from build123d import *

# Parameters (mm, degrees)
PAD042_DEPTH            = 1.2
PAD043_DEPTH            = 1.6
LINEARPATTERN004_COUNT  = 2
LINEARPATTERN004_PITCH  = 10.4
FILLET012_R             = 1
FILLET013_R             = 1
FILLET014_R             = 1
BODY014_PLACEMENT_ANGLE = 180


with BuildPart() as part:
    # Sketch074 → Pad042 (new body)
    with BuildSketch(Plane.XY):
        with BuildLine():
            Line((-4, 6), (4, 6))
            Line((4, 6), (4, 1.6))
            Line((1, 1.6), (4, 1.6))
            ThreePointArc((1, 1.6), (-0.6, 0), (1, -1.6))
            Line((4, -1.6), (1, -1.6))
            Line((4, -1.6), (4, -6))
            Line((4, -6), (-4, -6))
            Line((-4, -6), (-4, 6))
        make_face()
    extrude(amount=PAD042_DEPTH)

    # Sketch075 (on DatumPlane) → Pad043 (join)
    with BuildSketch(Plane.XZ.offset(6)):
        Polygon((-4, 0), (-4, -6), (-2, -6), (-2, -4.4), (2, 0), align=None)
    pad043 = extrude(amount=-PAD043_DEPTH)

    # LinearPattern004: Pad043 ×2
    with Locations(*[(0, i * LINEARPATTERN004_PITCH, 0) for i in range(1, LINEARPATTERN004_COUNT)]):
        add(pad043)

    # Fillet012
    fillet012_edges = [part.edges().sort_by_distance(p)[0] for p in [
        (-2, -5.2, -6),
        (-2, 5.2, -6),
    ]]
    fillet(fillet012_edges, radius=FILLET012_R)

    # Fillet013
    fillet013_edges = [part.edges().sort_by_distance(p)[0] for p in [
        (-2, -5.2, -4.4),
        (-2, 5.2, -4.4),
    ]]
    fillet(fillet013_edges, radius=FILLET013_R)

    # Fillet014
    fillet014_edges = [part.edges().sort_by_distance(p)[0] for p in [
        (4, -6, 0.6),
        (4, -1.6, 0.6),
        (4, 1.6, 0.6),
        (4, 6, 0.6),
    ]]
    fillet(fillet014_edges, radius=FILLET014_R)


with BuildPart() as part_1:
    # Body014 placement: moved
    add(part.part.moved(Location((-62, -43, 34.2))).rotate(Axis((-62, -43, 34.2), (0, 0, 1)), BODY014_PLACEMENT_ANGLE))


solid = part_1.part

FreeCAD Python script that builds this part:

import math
import FreeCAD as App
import Part
import Sketcher
Q = App.Units.Quantity


def edges_at(feature, points):
    """Names of the edges that pass closest to the given points."""
    edges = feature.Shape.Edges
    near = lambda p: min(range(len(edges)), key=lambda i: edges[i].distToShape(Part.Vertex(*p))[0])
    return sorted({f"Edge{near(p) + 1}" for p in points})

doc = App.newDocument("Part")
body = doc.addObject("PartDesign::Body", "Body")

sketch1 = body.newObject("Sketcher::SketchObject", "Sketch")
sketch1.AttachmentSupport = (doc.getObject("XY_Plane"), [""])
sketch1.MapMode = "FlatFace"
sketch1.addGeometry([
    Part.LineSegment(App.Vector(4, 6, 0), App.Vector(-4, 6, 0)),
    Part.LineSegment(App.Vector(-4, 6, 0), App.Vector(-4, -6, 0)),
    Part.LineSegment(App.Vector(-4, -6, 0), App.Vector(4, -6, 0)),
    Part.LineSegment(App.Vector(4, -6, 0), App.Vector(4, -1.6, 0)),
    Part.LineSegment(App.Vector(4, -1.6, 0), App.Vector(1, -1.6, 0)),
    Part.ArcOfCircle(Part.Circle(App.Vector(1, 0, 0), App.Vector(0, 0, 1), 1.6), math.radians(90), math.radians(270)),
    Part.LineSegment(App.Vector(1, 1.6, 0), App.Vector(4, 1.6, 0)),
    Part.LineSegment(App.Vector(4, 1.6, 0), App.Vector(4, 6, 0)),
], False)
sketch1.addConstraint([
    Sketcher.Constraint("Coincident", 0, 2, 1, 1),
    Sketcher.Constraint("Coincident", 1, 2, 2, 1),
    Sketcher.Constraint("Coincident", 2, 2, 3, 1),
    Sketcher.Constraint("Coincident", 3, 2, 4, 1),
    Sketcher.Constraint("Tangent", 4, 2, 5, 2),
    Sketcher.Constraint("Tangent", 5, 1, 6, 1),
    Sketcher.Constraint("Coincident", 6, 2, 7, 1),
    Sketcher.Constraint("Coincident", 7, 2, 0, 1),
    Sketcher.Constraint("Horizontal", 0),
    Sketcher.Constraint("Vertical", 1),
    Sketcher.Constraint("Horizontal", 2),
    Sketcher.Constraint("Vertical", 3),
    Sketcher.Constraint("Horizontal", 4),
    Sketcher.Constraint("Horizontal", 6),
    Sketcher.Constraint("Vertical", 7),
    Sketcher.Constraint("Symmetric", 0, 2, 2, 2, -1, 1),
    Sketcher.Constraint("Symmetric", 3, 2, 6, 2, -1),
    Sketcher.Constraint("Radius", 5, Q("1.6 mm")),
    Sketcher.Constraint("DistanceX", 0, 2, 0, 1, Q("8 mm")),
    Sketcher.Constraint("DistanceX", 4, 2, 4, 1, Q("3 mm")),
    Sketcher.Constraint("DistanceY", 1, 2, 1, 1, Q("12 mm")),
])
pad1 = body.newObject("PartDesign::Pad", "Pad")
pad1.Profile = sketch1
pad1.Length = 1.2

sketch2 = body.newObject("Sketcher::SketchObject", "Sketch001")
sketch2.AttachmentSupport = (doc.getObject("XZ_Plane"), [""])
sketch2.MapMode = "FlatFace"
sketch2.AttachmentOffset = App.Placement(App.Vector(0, 0, 6), App.Rotation())
sketch2.addGeometry([
    Part.LineSegment(App.Vector(-4, 0, 0), App.Vector(-4, -6, 0)),
    Part.LineSegment(App.Vector(-4, -6, 0), App.Vector(-2, -6, 0)),
    Part.LineSegment(App.Vector(-2, -6, 0), App.Vector(-2, -4.4, 0)),
    Part.LineSegment(App.Vector(-2, -4.4, 0), App.Vector(2, 0, 0)),
    Part.LineSegment(App.Vector(2, 0, 0), App.Vector(-4, 0, 0)),
], False)
sketch2.addConstraint([
    Sketcher.Constraint("Coincident", 0, 2, 1, 1),
    Sketcher.Constraint("Coincident", 1, 2, 2, 1),
    Sketcher.Constraint("Coincident", 2, 2, 3, 1),
    Sketcher.Constraint("Coincident", 3, 2, 4, 1),
    Sketcher.Constraint("Coincident", 4, 2, 0, 1),
    Sketcher.Constraint("Vertical", 0),
    Sketcher.Constraint("Horizontal", 1),
    Sketcher.Constraint("Vertical", 2),
    Sketcher.Constraint("Horizontal", 4),
    Sketcher.Constraint("PointOnObject", 3, 2, -1),
    Sketcher.Constraint("Equal", 4, 0),
    Sketcher.Constraint("DistanceX", 1, 1, 1, 2, Q("2 mm")),
    Sketcher.Constraint("DistanceX", 4, 2, 4, 1, Q("6 mm")),
    Sketcher.Constraint("DistanceY", 2, 1, 2, 2, Q("1.6 mm")),
    Sketcher.Constraint("DistanceX", 0, 2, -1, 1, Q("4 mm")),
])
pad2 = body.newObject("PartDesign::Pad", "Pad001")
pad2.Profile = sketch2
pad2.Length = 1.6
pad2.Reversed = True
doc.recompute()

linearpattern = body.newObject("PartDesign::LinearPattern", "LinearPattern")
linearpattern.Originals = [pad2]
linearpattern.Direction = (doc.getObject("Y_Axis"), [""])
linearpattern.Mode = "offset"
linearpattern.Offset = 10.4
linearpattern.Occurrences = 2
body.Tip = linearpattern
doc.recompute()

fillet = body.newObject("PartDesign::Fillet", "Fillet")
fillet.Base = (linearpattern, edges_at(linearpattern, [(-2, -5.2, -6), (-2, 5.2, -6)]))
fillet.Radius = 1
doc.recompute()

fillet2 = body.newObject("PartDesign::Fillet", "Fillet001")
fillet2.Base = (fillet, edges_at(fillet, [(-2, -5.2, -4.4), (-2, 5.2, -4.4)]))
fillet2.Radius = 1
doc.recompute()

fillet3 = body.newObject("PartDesign::Fillet", "Fillet002")
fillet3.Base = (fillet2, edges_at(fillet2, [
    (4, -6, 0.6),
    (4, -1.6, 0.6),
    (4, 1.6, 0.6),
    (4, 6, 0.6),
]))
fillet3.Radius = 1
body2 = doc.addObject("PartDesign::Body", "Body001")
doc.recompute()

body.Placement = App.Placement(App.Vector(-62, -43, 34.2), App.Rotation(App.Vector(0, 0, 1), 180))
boolean = body2.newObject("PartDesign::Boolean", "Boolean")
boolean.Type = "Fuse"
boolean.addObjects([body])

doc.recompute()
